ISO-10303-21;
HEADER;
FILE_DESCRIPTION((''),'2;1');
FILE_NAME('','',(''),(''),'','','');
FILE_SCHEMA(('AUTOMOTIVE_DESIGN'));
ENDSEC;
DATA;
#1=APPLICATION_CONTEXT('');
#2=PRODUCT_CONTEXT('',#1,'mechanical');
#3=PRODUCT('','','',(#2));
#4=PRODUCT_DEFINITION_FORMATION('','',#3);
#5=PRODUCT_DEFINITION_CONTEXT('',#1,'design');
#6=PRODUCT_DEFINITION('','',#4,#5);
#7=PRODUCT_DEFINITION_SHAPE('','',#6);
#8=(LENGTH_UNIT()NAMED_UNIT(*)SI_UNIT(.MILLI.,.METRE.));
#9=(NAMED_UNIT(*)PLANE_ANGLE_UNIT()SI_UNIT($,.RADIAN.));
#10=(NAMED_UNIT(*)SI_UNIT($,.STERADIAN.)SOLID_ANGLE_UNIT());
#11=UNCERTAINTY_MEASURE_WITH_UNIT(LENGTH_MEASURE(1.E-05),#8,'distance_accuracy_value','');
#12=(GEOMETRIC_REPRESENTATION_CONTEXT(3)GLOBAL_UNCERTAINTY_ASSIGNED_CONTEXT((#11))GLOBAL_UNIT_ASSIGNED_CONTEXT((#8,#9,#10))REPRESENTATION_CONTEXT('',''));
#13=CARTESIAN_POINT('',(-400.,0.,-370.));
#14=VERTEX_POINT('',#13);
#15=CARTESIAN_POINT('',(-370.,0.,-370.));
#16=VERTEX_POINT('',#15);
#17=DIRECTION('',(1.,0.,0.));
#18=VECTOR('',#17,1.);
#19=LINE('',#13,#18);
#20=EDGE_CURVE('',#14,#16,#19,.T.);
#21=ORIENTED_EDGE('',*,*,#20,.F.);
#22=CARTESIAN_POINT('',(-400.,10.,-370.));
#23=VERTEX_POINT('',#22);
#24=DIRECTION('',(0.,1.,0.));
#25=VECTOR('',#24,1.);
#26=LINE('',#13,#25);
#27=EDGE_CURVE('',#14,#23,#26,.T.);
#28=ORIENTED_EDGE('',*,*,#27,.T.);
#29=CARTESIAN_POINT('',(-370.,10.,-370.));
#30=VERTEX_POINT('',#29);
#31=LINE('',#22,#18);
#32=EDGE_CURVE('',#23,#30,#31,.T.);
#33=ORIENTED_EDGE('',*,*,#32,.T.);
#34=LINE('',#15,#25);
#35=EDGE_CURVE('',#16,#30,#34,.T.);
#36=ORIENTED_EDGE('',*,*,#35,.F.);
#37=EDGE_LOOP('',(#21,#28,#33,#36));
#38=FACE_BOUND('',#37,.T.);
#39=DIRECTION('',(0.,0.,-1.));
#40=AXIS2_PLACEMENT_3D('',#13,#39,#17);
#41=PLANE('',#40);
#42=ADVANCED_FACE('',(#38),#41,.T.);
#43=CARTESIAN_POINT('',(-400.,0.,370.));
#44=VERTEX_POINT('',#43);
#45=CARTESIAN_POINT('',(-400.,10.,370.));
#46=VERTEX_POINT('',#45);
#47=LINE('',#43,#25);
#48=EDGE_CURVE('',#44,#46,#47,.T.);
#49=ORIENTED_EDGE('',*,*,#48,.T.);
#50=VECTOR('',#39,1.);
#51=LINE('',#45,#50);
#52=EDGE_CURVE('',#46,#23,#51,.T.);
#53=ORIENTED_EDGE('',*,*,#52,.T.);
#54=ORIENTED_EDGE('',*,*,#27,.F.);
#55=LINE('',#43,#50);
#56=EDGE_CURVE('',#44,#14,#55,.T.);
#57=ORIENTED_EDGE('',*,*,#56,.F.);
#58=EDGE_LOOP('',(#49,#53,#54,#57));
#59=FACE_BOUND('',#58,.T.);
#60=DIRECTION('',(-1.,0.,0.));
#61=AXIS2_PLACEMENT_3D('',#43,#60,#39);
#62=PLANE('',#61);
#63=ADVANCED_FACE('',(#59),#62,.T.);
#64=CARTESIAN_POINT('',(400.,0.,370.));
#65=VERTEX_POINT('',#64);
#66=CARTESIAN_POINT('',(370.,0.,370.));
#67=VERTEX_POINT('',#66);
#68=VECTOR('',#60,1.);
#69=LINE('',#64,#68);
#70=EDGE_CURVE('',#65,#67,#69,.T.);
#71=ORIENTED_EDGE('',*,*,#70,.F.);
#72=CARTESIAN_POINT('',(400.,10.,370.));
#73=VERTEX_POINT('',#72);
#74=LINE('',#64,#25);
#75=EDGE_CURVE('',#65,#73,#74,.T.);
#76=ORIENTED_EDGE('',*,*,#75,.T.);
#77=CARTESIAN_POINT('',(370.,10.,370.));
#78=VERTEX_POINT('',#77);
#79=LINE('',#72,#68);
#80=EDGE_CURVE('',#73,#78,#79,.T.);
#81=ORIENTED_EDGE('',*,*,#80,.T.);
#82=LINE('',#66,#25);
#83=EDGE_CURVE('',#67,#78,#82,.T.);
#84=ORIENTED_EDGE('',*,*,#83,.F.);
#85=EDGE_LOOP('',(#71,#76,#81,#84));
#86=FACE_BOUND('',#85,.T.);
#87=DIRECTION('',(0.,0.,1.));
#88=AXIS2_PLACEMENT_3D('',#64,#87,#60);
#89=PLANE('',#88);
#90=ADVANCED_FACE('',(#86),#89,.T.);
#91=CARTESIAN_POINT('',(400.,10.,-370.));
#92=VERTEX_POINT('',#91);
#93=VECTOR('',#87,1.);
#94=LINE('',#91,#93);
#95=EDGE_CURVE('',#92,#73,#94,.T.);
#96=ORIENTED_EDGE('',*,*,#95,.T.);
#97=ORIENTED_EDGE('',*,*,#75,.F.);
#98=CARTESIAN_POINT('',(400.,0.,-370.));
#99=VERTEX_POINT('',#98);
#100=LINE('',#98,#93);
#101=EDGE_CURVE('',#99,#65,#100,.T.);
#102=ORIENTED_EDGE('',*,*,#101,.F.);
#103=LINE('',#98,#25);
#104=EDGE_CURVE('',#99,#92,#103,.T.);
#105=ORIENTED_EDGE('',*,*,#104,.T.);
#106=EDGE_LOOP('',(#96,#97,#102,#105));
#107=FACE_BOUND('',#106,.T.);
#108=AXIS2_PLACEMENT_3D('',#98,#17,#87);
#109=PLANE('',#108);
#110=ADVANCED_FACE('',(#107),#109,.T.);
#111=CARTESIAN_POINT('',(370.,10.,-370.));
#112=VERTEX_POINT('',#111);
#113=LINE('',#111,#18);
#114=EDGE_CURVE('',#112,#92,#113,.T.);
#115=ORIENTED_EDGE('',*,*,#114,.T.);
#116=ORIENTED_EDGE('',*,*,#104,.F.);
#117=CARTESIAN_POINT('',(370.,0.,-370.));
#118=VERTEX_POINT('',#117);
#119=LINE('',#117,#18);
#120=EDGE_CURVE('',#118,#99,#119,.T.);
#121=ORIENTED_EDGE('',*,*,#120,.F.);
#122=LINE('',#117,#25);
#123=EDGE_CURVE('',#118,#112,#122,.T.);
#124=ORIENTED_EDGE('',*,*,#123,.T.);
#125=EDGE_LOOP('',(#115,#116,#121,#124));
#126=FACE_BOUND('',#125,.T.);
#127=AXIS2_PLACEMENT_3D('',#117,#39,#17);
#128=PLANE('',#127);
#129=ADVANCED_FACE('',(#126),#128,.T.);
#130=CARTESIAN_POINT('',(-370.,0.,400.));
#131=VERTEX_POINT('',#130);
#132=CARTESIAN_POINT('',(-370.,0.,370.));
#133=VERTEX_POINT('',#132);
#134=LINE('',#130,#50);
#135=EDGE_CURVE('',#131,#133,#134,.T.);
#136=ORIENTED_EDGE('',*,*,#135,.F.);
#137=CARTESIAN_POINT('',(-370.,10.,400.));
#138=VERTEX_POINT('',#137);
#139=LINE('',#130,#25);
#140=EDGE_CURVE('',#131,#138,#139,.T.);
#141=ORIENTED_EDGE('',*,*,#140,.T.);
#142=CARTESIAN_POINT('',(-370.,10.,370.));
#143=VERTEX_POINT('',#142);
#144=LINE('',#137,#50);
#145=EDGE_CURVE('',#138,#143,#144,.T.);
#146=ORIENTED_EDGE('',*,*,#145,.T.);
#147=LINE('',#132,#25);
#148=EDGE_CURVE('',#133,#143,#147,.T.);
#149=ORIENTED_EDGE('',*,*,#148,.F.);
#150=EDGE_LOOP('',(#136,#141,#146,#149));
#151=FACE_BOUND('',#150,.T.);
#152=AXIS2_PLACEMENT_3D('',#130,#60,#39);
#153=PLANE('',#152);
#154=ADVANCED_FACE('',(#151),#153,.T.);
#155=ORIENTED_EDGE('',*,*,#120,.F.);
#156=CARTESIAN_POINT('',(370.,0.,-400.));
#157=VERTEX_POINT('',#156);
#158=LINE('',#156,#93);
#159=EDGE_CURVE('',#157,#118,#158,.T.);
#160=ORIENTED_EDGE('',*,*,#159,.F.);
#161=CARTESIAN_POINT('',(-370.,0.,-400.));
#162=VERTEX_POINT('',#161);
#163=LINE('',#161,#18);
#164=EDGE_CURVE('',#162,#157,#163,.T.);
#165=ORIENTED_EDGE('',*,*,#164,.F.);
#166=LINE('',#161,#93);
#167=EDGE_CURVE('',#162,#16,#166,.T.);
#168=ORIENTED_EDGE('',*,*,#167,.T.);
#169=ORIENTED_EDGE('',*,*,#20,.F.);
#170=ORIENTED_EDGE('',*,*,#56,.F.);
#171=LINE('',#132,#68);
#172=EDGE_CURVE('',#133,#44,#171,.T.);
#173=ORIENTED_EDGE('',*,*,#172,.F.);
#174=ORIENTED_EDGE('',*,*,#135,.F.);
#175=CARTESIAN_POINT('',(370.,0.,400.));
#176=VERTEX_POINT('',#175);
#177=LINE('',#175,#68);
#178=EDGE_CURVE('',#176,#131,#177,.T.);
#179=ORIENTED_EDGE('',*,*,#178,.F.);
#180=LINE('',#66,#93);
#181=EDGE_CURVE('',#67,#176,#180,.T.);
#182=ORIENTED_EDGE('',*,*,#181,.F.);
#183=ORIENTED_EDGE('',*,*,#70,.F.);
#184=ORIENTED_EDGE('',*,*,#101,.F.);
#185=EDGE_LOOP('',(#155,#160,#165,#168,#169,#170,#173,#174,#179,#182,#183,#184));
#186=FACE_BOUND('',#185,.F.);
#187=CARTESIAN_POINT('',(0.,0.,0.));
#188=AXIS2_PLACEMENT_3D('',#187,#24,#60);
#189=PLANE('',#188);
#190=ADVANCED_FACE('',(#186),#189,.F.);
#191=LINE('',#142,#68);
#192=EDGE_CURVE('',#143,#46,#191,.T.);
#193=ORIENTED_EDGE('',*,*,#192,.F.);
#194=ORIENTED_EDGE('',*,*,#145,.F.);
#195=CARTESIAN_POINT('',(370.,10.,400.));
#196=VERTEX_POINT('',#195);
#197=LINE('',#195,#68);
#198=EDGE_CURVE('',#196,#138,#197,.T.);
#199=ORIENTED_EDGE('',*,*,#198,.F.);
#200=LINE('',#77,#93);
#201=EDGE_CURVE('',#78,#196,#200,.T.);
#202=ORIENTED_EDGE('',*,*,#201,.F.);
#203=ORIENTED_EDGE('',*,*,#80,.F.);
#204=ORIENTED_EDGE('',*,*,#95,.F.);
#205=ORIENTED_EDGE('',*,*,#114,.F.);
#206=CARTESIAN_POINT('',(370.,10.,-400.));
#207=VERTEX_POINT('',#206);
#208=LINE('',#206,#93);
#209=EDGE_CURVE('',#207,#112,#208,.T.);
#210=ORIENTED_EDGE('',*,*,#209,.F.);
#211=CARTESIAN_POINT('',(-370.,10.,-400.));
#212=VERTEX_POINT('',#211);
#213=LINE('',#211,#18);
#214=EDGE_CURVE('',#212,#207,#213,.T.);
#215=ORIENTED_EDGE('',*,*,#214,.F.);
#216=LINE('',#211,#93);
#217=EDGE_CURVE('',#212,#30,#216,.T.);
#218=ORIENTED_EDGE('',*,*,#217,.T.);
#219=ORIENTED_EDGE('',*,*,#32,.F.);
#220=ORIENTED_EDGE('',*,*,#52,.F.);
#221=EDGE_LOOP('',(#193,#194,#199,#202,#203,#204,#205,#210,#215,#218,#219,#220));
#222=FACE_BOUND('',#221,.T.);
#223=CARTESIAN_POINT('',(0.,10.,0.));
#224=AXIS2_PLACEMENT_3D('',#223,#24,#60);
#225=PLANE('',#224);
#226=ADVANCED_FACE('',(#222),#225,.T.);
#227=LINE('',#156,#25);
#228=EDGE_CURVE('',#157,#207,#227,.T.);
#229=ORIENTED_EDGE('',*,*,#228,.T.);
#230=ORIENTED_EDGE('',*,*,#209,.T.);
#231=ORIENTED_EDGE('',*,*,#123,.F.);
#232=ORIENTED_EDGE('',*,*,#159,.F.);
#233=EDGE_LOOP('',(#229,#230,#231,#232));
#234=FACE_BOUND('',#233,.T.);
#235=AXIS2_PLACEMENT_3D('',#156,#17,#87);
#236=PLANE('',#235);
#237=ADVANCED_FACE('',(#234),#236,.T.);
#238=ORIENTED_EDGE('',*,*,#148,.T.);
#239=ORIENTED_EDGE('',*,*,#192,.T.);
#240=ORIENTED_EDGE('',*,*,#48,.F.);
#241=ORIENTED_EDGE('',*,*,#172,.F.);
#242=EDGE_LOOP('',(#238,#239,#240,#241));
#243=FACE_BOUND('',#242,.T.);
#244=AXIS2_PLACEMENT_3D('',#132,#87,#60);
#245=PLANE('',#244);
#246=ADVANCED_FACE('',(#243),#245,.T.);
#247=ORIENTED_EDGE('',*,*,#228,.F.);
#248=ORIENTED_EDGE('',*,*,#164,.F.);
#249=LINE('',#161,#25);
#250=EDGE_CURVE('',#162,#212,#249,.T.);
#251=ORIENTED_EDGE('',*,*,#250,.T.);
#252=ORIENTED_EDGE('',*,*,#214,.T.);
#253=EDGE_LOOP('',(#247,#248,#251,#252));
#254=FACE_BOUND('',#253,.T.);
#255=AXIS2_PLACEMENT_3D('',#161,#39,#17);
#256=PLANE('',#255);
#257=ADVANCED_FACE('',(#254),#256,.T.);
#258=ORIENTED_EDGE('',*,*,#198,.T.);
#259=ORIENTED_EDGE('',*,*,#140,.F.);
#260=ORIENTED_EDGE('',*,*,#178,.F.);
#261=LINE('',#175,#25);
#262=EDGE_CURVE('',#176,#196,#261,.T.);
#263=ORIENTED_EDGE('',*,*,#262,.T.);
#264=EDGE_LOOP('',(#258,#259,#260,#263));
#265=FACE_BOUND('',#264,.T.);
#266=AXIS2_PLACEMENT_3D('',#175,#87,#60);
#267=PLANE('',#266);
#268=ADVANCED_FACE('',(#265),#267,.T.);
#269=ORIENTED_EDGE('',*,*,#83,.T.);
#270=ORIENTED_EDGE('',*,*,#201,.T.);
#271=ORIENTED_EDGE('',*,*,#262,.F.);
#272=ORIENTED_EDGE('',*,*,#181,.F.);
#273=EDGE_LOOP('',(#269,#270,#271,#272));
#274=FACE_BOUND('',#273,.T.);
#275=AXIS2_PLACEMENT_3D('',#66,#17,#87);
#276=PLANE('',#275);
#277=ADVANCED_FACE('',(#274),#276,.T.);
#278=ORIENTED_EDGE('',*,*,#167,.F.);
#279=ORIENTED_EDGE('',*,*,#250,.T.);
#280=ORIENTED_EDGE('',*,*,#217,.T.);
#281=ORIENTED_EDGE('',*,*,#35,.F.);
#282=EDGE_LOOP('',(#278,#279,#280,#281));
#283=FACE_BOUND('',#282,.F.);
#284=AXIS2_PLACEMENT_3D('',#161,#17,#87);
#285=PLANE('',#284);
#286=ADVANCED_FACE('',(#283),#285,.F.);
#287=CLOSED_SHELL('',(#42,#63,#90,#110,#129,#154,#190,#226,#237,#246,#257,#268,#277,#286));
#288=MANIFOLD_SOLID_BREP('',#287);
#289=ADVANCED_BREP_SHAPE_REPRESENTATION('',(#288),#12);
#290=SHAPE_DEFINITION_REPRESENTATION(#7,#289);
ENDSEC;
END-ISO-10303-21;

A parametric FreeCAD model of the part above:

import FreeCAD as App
import Part
import Sketcher

V = App.Vector
Q = App.Units.Quantity


def add_polygon(sketch, points):
    """Adds a closed chain of lines whose ends are joined by coincident constraints."""
    first, n = sketch.GeometryCount, len(points)
    for a, b in zip(points, points[1:] + points[:1]):
        sketch.addGeometry(Part.LineSegment(App.Vector(*a, 0), App.Vector(*b, 0)), False)
    for i in range(n):
        sketch.addConstraint(Sketcher.Constraint("Coincident", first + i, 2, first + (i + 1) % n, 1))

doc = App.newDocument("Part")
params = doc.addObject("Spreadsheet::Sheet", "Params")
for row, (alias, value) in enumerate([
    ("sketch1_width", "740 mm"),
    ("sketch1_width2", "30 mm"),
    ("pad1_length", "10 mm"),
], start=1):
    params.set(f"A{row}", alias)
    params.set(f"B{row}", "=" + value)
    params.setAlias(f"B{row}", alias)

body = doc.addObject("PartDesign::Body", "Body")

# Sketch on XZ plane
sketch1 = body.newObject("Sketcher::SketchObject", "Sketch")
sketch1.AttachmentSupport = (doc.getObject("XZ_Plane"), [""])
sketch1.MapMode = "FlatFace"
add_polygon(sketch1, [(370, -400), (-370, -400), (-370, -370), (-400, -370), (-400, 370), (-370, 370), (-370, 400), (370, 400), (370, 370), (400, 370), (400, -370), (370, -370)])  # lines 0-11
sketch1.addConstraint([
    Sketcher.Constraint("Horizontal", 0),
    Sketcher.Constraint("Vertical", 1),
    Sketcher.Constraint("Horizontal", 2),
    Sketcher.Constraint("Vertical", 3),
    Sketcher.Constraint("Horizontal", 4),
    Sketcher.Constraint("Vertical", 5),
    Sketcher.Constraint("Horizontal", 6),
    Sketcher.Constraint("Vertical", 7),
    Sketcher.Constraint("Horizontal", 8),
    Sketcher.Constraint("Vertical", 9),
    Sketcher.Constraint("Horizontal", 10),
    Sketcher.Constraint("Vertical", 11),
    Sketcher.Constraint("Symmetric", 0, 2, 6, 2, -1, 1),
    Sketcher.Constraint("Symmetric", 2, 2, 8, 2, -1, 1),
    Sketcher.Constraint("Symmetric", 4, 2, 10, 2, -1, 1),
    Sketcher.Constraint("Symmetric", 4, 2, 7, 2, -2),
    Sketcher.Constraint("Equal", 10, 1),
    Sketcher.Constraint("Equal", 6, 3),
    Sketcher.Constraint("DistanceX", 0, 2, 0, 1, Q("740 mm")),
    Sketcher.Constraint("DistanceX", 2, 2, 2, 1, Q("30 mm")),
])
sketch1.setExpression("Constraints[30]", "Params.sketch1_width")
sketch1.setExpression("Constraints[31]", "Params.sketch1_width2")
pad1 = body.newObject("PartDesign::Pad", "Pad")
pad1.Profile = sketch1
pad1.setExpression("Length", "Params.pad1_length")
pad1.Reversed = True

doc.recompute()
